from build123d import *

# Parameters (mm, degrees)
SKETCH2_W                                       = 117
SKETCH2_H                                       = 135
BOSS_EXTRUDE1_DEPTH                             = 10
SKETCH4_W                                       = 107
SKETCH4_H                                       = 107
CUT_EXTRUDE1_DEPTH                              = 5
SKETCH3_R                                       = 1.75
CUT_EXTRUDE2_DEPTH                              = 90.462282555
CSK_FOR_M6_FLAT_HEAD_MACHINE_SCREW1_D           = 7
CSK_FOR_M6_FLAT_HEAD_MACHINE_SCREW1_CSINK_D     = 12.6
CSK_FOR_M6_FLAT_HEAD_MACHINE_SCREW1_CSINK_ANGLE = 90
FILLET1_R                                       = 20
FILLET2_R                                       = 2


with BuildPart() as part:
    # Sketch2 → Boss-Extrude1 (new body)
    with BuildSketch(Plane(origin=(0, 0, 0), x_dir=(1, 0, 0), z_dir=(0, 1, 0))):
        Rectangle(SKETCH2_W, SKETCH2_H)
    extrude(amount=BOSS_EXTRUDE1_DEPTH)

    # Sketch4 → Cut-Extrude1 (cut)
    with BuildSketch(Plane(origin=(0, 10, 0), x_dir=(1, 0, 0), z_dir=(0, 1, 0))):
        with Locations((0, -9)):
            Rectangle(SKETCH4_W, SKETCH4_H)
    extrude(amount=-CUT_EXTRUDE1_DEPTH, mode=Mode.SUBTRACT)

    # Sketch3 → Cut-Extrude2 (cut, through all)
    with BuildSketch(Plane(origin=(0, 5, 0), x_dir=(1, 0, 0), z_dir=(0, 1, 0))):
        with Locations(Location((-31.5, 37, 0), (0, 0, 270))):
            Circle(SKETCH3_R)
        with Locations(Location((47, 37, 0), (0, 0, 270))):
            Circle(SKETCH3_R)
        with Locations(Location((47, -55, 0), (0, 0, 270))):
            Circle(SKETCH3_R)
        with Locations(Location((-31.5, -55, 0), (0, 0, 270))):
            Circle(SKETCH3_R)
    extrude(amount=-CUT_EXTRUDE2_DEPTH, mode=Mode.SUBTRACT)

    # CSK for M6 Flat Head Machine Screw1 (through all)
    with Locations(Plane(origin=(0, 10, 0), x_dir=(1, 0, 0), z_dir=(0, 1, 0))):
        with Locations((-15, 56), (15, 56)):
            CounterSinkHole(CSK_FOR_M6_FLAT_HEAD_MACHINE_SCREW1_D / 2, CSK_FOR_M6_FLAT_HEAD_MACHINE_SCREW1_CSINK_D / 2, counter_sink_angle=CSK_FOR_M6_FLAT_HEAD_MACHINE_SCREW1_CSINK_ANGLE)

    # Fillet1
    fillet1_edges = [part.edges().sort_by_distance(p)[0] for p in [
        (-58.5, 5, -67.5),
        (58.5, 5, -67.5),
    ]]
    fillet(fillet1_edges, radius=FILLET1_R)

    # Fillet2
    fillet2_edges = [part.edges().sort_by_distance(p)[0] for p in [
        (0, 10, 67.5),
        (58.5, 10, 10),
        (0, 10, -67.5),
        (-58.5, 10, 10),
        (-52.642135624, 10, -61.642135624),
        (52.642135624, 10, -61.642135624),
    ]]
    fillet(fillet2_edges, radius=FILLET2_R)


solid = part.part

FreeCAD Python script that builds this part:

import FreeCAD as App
import Part
import Sketcher
from FreeCAD import Vector


def edges_at(feature, points):
    """Names of the edges that pass closest to the given points."""
    edges = feature.Shape.Edges
    near = lambda p: min(range(len(edges)), key=lambda i: edges[i].distToShape(Part.Vertex(*p))[0])
    return sorted({f"Edge{near(p) + 1}" for p in points})


def add_polygon(sketch, points):
    """Adds a closed chain of lines whose ends are joined by coincident constraints."""
    first, n = sketch.GeometryCount, len(points)
    for a, b in zip(points, points[1:] + points[:1]):
        sketch.addGeometry(Part.LineSegment(App.Vector(*a, 0), App.Vector(*b, 0)), False)
    for i in range(n):
        sketch.addConstraint(Sketcher.Constraint("Coincident", first + i, 2, first + (i + 1) % n, 1))

doc = App.newDocument("Part")
params = doc.addObject("Spreadsheet::Sheet", "Params")
for row, (alias, value) in enumerate([
    ("sketch1_width", "117 mm"),
    ("sketch1_height", "135 mm"),
    ("pad1_length", "10 mm"),
    ("sketch2_width", "107 mm"),
    ("pocket1_length", "5 mm"),
    ("sketch3_diameter", "3.5 mm"),
    ("sketch4_diameter", "7 mm"),
    ("hole_diameter", "7 mm"),
    ("hole_csink_diameter", "12.6 mm"),
    ("fillet_radius", "20 mm"),
    ("fillet2_radius", "2 mm"),
], start=1):
    params.set(f"A{row}", alias)
    params.set(f"B{row}", "=" + value)
    params.setAlias(f"B{row}", alias)

body = doc.addObject("PartDesign::Body", "Body")

sketch1 = doc.addObject("Sketcher::SketchObject", "Sketch")
body.addObject(sketch1)
sketch1.AttachmentSupport = (doc.XZ_Plane, [""])
sketch1.MapMode = "FlatFace"
add_polygon(sketch1, [(-58.5, -67.5), (-58.5, 67.5), (58.5, 67.5), (58.5, -67.5)])
sketch1.addConstraint([
    Sketcher.Constraint("Vertical", 0),
    Sketcher.Constraint("Horizontal", 1),
    Sketcher.Constraint("Vertical", 2),
    Sketcher.Constraint("Horizontal", 3),
    Sketcher.Constraint("Symmetric", 0, 2, 2, 2, -1, 1),
    Sketcher.Constraint("DistanceX", 1, 1, 1, 2, 117.0),
    Sketcher.Constraint("DistanceY", 0, 1, 0, 2, 135.0),
])
sketch1.setExpression("Constraints[9]", "Params.sketch1_width")
sketch1.setExpression("Constraints[10]", "Params.sketch1_height")
pad1 = doc.addObject("PartDesign::Pad", "Pad")
body.addObject(pad1)
pad1.Profile = sketch1
pad1.setExpression("Length", "Params.pad1_length")
pad1.Reversed = True

sketch2 = doc.addObject("Sketcher::SketchObject", "Sketch001")
body.addObject(sketch2)
sketch2.AttachmentSupport = (doc.XZ_Plane, [""])
sketch2.MapMode = "FlatFace"
sketch2.AttachmentOffset = App.Placement(Vector(0, 0, -10), App.Rotation())
add_polygon(sketch2, [(-53.5, -44.5), (-53.5, 62.5), (53.5, 62.5), (53.5, -44.5)])
sketch2.addConstraint([
    Sketcher.Constraint("Vertical", 0),
    Sketcher.Constraint("Horizontal", 1),
    Sketcher.Constraint("Vertical", 2),
    Sketcher.Constraint("Horizontal", 3),
    Sketcher.Constraint("Equal", 3, 0),
    Sketcher.Constraint("DistanceX", 1, 1, 1, 2, 107.0),
    Sketcher.Constraint("DistanceX", 0, 2, -1, 1, 53.5),
    Sketcher.Constraint("DistanceY", -1, 1, 0, 2, 62.5),
])
sketch2.setExpression("Constraints[9]", "Params.sketch2_width")
pocket1 = doc.addObject("PartDesign::Pocket", "Pocket")
body.addObject(pocket1)
pocket1.Profile = sketch2
pocket1.setExpression("Length", "Params.pocket1_length")
pocket1.Reversed = True

sketch3 = doc.addObject("Sketcher::SketchObject", "Sketch002")
body.addObject(sketch3)
sketch3.AttachmentSupport = (doc.XZ_Plane, [""])
sketch3.MapMode = "FlatFace"
sketch3.AttachmentOffset = App.Placement(Vector(0, 0, -5), App.Rotation())
sketch3.addGeometry([
    Part.Circle(Vector(-31.5, -37, 0), Vector(0, 0, 1), 1.75),
    Part.Circle(Vector(47, -37, 0), Vector(0, 0, 1), 1.75),
    Part.Circle(Vector(47, 55, 0), Vector(0, 0, 1), 1.75),
    Part.Circle(Vector(-31.5, 55, 0), Vector(0, 0, 1), 1.75),
], False)
sketch3.addConstraint([
    Sketcher.Constraint("Equal", 0, 1),
    Sketcher.Constraint("Equal", 1, 2),
    Sketcher.Constraint("Equal", 2, 3),
    Sketcher.Constraint("Horizontal", 0, 3, 1, 3),
    Sketcher.Constraint("Horizontal", 2, 3, 3, 3),
    Sketcher.Constraint("Vertical", 1, 3, 2, 3),
    Sketcher.Constraint("Vertical", 0, 3, 3, 3),
    Sketcher.Constraint("Diameter", 0, 3.5),
    Sketcher.Constraint("DistanceY", 0, 3, -1, 1, 37.0),
    Sketcher.Constraint("DistanceX", -1, 1, 1, 3, 47.0),
    Sketcher.Constraint("DistanceY", -1, 1, 2, 3, 55.0),
    Sketcher.Constraint("DistanceX", 0, 3, -1, 1, 31.5),
])
sketch3.setExpression("Constraints[7]", "Params.sketch3_diameter")
pocket2 = doc.addObject("PartDesign::Pocket", "Pocket001")
body.addObject(pocket2)
pocket2.Profile = sketch3
pocket2.Type = "ThroughAll"
pocket2.Reversed = True

sketch4 = doc.addObject("Sketcher::SketchObject", "Sketch003")
body.addObject(sketch4)
sketch4.AttachmentSupport = (doc.XZ_Plane, [""])
sketch4.MapMode = "FlatFace"
sketch4.AttachmentOffset = App.Placement(Vector(0, 0, -10), App.Rotation())
sketch4.addGeometry([
    Part.Circle(Vector(-15, -56, 0), Vector(0, 0, 1), 3.5),
    Part.Circle(Vector(15, -56, 0), Vector(0, 0, 1), 3.5),
], False)
sketch4.addConstraint([
    Sketcher.Constraint("Equal", 0, 1),
    Sketcher.Constraint("Symmetric", 0, 3, 1, 3, -2),
    Sketcher.Constraint("Diameter", 0, 7.0),
    Sketcher.Constraint("DistanceX", 0, 3, -1, 1, 15.0),
    Sketcher.Constraint("DistanceY", 0, 3, -1, 1, 56.0),
])
sketch4.setExpression("Constraints[2]", "Params.sketch4_diameter")
doc.recompute()
hole = doc.addObject("PartDesign::Hole", "Hole")
body.addObject(hole)
hole.Profile = sketch4
hole.ThreadType = "None"
hole.setExpression("Diameter", "Params.hole_diameter")
hole.DepthType = "ThroughAll"
hole.HoleCutType = "Countersink"
hole.setExpression("HoleCutDiameter", "Params.hole_csink_diameter")
hole.HoleCutCountersinkAngle = 90
hole.Reversed = True
doc.recompute()

fillet = doc.addObject("PartDesign::Fillet", "Fillet")
body.addObject(fillet)
fillet.Base = (hole, edges_at(hole, [(-58.5, 5, -67.5), (58.5, 5, -67.5)]))
fillet.setExpression("Radius", "Params.fillet_radius")
doc.recompute()

fillet2 = doc.addObject("PartDesign::Fillet", "Fillet001")
body.addObject(fillet2)
fillet2.Base = (fillet, edges_at(fillet, [
    (0, 10, 67.5),
    (58.5, 10, 10),
    (0, 10, -67.5),
    (-58.5, 10, 10),
    (-52.642, 10, -61.642),
    (52.642, 10, -61.642),
]))
fillet2.setExpression("Radius", "Params.fillet2_radius")

doc.recompute()
